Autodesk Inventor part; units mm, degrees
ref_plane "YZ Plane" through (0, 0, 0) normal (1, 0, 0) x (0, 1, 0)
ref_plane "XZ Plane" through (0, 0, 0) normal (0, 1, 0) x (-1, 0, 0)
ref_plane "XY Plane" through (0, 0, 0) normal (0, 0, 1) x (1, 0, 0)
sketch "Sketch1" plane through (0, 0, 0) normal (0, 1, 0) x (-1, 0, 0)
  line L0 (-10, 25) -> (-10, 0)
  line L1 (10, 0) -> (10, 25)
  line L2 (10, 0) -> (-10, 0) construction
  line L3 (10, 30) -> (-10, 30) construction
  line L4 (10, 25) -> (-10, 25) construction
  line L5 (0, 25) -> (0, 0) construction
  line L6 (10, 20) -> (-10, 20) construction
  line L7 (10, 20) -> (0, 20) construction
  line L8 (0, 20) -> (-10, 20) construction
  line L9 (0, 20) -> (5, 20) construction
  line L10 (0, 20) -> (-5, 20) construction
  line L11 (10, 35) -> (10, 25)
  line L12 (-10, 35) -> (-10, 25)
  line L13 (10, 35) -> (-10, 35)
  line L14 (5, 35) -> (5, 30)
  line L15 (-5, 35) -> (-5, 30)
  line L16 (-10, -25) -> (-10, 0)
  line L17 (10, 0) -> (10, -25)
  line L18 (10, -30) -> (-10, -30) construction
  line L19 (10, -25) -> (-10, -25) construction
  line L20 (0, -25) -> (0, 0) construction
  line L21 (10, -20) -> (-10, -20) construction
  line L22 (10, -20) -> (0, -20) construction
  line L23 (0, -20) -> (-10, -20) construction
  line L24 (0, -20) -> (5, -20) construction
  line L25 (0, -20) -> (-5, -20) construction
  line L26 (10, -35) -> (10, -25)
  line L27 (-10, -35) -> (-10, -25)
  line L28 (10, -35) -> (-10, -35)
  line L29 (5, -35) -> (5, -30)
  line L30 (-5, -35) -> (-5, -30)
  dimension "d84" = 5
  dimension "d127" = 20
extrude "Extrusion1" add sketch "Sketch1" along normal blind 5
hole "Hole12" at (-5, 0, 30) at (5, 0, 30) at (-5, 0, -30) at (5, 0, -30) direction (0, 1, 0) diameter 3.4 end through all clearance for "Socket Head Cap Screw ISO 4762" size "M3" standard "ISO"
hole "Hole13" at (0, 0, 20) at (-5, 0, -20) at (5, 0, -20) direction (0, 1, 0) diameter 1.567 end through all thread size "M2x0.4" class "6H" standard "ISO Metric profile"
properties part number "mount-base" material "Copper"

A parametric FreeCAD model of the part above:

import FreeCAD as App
import Part
import Sketcher
from FreeCAD import Vector

doc = App.newDocument("Part")
body = doc.addObject("PartDesign::Body", "Body")

# Sketch on XZ plane
sketch1 = body.newObject("Sketcher::SketchObject", "Sketch")
sketch1.AttachmentSupport = (doc.getObject("XZ_Plane"), [""])
sketch1.MapMode = "FlatFace"
sketch1.addGeometry([
    Part.LineSegment(Vector(10, 35, 0), Vector(10, -35, 0)),
    Part.LineSegment(Vector(10, -35, 0), Vector(-10, -35, 0)),
    Part.LineSegment(Vector(-10, -35, 0), Vector(-10, 35, 0)),
    Part.LineSegment(Vector(-10, 35, 0), Vector(10, 35, 0)),
], False)
sketch1.addConstraint([
    Sketcher.Constraint("Coincident", 0, 2, 1, 1),
    Sketcher.Constraint("Coincident", 1, 2, 2, 1),
    Sketcher.Constraint("Coincident", 2, 2, 3, 1),
    Sketcher.Constraint("Coincident", 3, 2, 0, 1),
    Sketcher.Constraint("Vertical", 0),
    Sketcher.Constraint("Horizontal", 1),
    Sketcher.Constraint("Vertical", 2),
    Sketcher.Constraint("Horizontal", 3),
    Sketcher.Constraint("Symmetric", 0, 2, 2, 2, -1, 1),
    Sketcher.Constraint("DistanceX", 1, 2, 1, 1, 20.0),
    Sketcher.Constraint("DistanceY", 0, 2, 0, 1, 70.0),
])
pad1 = body.newObject("PartDesign::Pad", "Pad")
pad1.Profile = sketch1
pad1.Length = 5
pad1.Reversed = True

# Sketch on XZ plane
sketch2 = body.newObject("Sketcher::SketchObject", "Sketch001")
sketch2.AttachmentSupport = (doc.getObject("XZ_Plane"), [""])
sketch2.MapMode = "FlatFace"
sketch2.addGeometry([
    Part.Circle(Vector(-5, 30, 0), Vector(0, 0, 1), 1.7),
    Part.Circle(Vector(5, 30, 0), Vector(0, 0, 1), 1.7),
    Part.Circle(Vector(-5, -30, 0), Vector(0, 0, 1), 1.7),
    Part.Circle(Vector(5, -30, 0), Vector(0, 0, 1), 1.7),
], False)
sketch2.addConstraint([
    Sketcher.Constraint("Equal", 0, 1),
    Sketcher.Constraint("Equal", 1, 2),
    Sketcher.Constraint("Equal", 2, 3),
    Sketcher.Constraint("Symmetric", 1, 3, 2, 3, -1, 1),
    Sketcher.Constraint("Symmetric", 0, 3, 3, 3, -1, 1),
    Sketcher.Constraint("Symmetric", 0, 3, 1, 3, -2),
    Sketcher.Constraint("Diameter", 0, 3.4),
    Sketcher.Constraint("DistanceX", 0, 3, -1, 1, 5.0),
    Sketcher.Constraint("DistanceY", -1, 1, 0, 3, 30.0),
])
doc.recompute()
hole = body.newObject("PartDesign::Hole", "Hole")
hole.Profile = sketch2
hole.ThreadType = "None"
hole.Diameter = 3.4
hole.DepthType = "ThroughAll"

# Sketch on XZ plane
sketch3 = body.newObject("Sketcher::SketchObject", "Sketch002")
sketch3.AttachmentSupport = (doc.getObject("XZ_Plane"), [""])
sketch3.MapMode = "FlatFace"
sketch3.addGeometry([
    Part.Circle(Vector(0, 20, 0), Vector(0, 0, 1), 0.8),
    Part.Circle(Vector(-5, -20, 0), Vector(0, 0, 1), 0.8),
    Part.Circle(Vector(5, -20, 0), Vector(0, 0, 1), 0.8),
], False)
sketch3.addConstraint([
    Sketcher.Constraint("Equal", 0, 1),
    Sketcher.Constraint("Equal", 1, 2),
    Sketcher.Constraint("Symmetric", 1, 3, 2, 3, -2),
    Sketcher.Constraint("PointOnObject", 0, 3, -2),
    Sketcher.Constraint("Diameter", 0, 1.567),
    Sketcher.Constraint("DistanceY", -1, 1, 0, 3, 20.0),
    Sketcher.Constraint("DistanceX", 1, 3, -1, 1, 5.0),
    Sketcher.Constraint("DistanceY", 1, 3, -1, 1, 20.0),
])
doc.recompute()
hole2 = body.newObject("PartDesign::Hole", "Hole001")
hole2.Profile = sketch3
hole2.ThreadType = "None"
hole2.Diameter = 1.567
hole2.DepthType = "ThroughAll"

doc.recompute()
